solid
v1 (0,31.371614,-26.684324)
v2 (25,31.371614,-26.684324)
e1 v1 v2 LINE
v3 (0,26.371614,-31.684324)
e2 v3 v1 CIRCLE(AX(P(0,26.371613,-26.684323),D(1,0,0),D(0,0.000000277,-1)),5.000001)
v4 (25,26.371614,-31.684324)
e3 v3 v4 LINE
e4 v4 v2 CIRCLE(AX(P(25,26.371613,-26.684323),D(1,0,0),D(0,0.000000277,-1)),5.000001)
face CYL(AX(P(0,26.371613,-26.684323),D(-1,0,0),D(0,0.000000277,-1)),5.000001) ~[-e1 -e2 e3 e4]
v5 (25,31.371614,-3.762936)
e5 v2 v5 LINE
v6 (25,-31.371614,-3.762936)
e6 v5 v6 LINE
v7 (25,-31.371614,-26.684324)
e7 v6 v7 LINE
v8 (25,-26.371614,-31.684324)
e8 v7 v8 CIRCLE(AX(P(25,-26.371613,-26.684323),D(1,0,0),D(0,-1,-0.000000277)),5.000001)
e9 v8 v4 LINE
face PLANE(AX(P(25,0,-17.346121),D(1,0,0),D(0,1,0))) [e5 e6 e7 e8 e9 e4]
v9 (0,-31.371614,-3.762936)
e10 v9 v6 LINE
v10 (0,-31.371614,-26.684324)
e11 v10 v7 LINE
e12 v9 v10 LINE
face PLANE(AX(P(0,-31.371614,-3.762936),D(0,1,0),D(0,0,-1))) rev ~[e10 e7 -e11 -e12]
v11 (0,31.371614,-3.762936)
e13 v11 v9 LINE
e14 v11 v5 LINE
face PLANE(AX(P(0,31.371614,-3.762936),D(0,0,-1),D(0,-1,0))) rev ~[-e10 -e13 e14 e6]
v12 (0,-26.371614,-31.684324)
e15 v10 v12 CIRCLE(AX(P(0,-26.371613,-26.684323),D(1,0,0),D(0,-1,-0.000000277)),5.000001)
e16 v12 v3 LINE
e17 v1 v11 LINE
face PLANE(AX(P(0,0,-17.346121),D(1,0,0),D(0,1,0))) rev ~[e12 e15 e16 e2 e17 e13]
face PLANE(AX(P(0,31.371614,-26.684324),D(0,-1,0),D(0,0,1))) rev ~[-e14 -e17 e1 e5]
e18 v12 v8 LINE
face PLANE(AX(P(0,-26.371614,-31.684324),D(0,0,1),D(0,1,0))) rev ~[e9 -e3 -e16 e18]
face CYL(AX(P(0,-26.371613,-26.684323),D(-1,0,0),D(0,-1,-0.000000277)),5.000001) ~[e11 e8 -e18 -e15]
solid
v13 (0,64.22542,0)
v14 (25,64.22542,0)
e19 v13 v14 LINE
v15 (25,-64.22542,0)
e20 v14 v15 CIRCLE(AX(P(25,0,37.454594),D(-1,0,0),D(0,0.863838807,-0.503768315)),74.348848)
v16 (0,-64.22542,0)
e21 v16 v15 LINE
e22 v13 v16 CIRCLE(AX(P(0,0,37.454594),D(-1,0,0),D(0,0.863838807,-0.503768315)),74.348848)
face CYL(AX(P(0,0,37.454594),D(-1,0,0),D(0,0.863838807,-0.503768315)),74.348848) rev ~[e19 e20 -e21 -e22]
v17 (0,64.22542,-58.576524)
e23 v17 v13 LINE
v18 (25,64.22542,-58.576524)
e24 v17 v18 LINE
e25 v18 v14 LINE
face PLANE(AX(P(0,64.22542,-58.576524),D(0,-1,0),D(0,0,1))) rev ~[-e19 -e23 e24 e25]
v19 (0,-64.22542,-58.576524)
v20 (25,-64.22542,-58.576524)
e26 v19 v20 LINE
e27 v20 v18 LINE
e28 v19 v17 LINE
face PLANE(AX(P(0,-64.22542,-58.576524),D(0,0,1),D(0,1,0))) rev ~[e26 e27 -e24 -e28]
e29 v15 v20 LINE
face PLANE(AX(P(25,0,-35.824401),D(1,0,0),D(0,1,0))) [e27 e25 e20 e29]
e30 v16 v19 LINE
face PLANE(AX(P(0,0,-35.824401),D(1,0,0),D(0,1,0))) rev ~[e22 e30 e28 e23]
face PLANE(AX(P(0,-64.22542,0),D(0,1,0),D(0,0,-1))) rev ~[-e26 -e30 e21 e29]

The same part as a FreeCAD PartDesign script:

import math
import FreeCAD as App
import Part
import Sketcher
from FreeCAD import Vector

doc = App.newDocument("Part")
body = doc.addObject("PartDesign::Body", "Body")

# Sketch on YZ plane
sketch1 = body.newObject("Sketcher::SketchObject", "Sketch")
sketch1.AttachmentSupport = (doc.getObject("YZ_Plane"), [""])
sketch1.MapMode = "FlatFace"
sketch1.addGeometry([
    Part.ArcOfCircle(Part.Circle(Vector(0, 37, 0), Vector(0, 0, 1), 74), math.radians(-150), math.radians(-30)),
    Part.LineSegment(Vector(-64, 0, 0), Vector(-64, -59, 0)),
    Part.LineSegment(Vector(-64, -59, 0), Vector(64, -59, 0)),
    Part.LineSegment(Vector(64, -59, 0), Vector(64, 0, 0)),
], False)
sketch1.addConstraint([
    Sketcher.Constraint("Coincident", 0, 1, 1, 1),
    Sketcher.Constraint("Coincident", 1, 2, 2, 1),
    Sketcher.Constraint("Coincident", 2, 2, 3, 1),
    Sketcher.Constraint("Coincident", 3, 2, 0, 2),
    Sketcher.Constraint("Vertical", 1),
    Sketcher.Constraint("Horizontal", 2),
    Sketcher.Constraint("Vertical", 3),
    Sketcher.Constraint("Symmetric", 0, 1, 3, 2, -1, 1),
    Sketcher.Constraint("PointOnObject", 0, 3, -2),
    Sketcher.Constraint("Radius", 0, 74.348848),
    Sketcher.Constraint("DistanceX", 2, 1, 2, 2, 128.45084),
    Sketcher.Constraint("DistanceY", 1, 2, 1, 1, 58.576524),
])
pad1 = body.newObject("PartDesign::Pad", "Pad")
pad1.Profile = sketch1
pad1.Length = 25
body2 = doc.addObject("PartDesign::Body", "Body001")

# Sketch on YZ plane
sketch2 = body2.newObject("Sketcher::SketchObject", "Sketch001")
sketch2.AttachmentSupport = (doc.getObject("YZ_Plane001"), [""])
sketch2.MapMode = "FlatFace"
sketch2.addGeometry([
    Part.LineSegment(Vector(31, -4, 0), Vector(-31, -4, 0)),  # 0
    Part.LineSegment(Vector(-31, -4, 0), Vector(-31, -27, 0)),  # 1
    Part.ArcOfCircle(Part.Circle(Vector(-26, -27, 0), Vector(0, 0, 1), 5), math.radians(-180), math.radians(-90)),  # 2
    Part.LineSegment(Vector(-26, -32, 0), Vector(26, -32, 0)),  # 3
    Part.ArcOfCircle(Part.Circle(Vector(26, -27, 0), Vector(0, 0, 1), 5), math.radians(-90), math.radians(0)),  # 4
    Part.LineSegment(Vector(31, -27, 0), Vector(31, -4, 0)),  # 5
], False)
sketch2.addConstraint([
    Sketcher.Constraint("Coincident", 0, 2, 1, 1),
    Sketcher.Constraint("Tangent", 1, 2, 2, 1),
    Sketcher.Constraint("Tangent", 2, 2, 3, 1),
    Sketcher.Constraint("Tangent", 3, 2, 4, 1),
    Sketcher.Constraint("Tangent", 4, 2, 5, 1),
    Sketcher.Constraint("Coincident", 5, 2, 0, 1),
    Sketcher.Constraint("Horizontal", 0),
    Sketcher.Constraint("Vertical", 1),
    Sketcher.Constraint("Horizontal", 3),
    Sketcher.Constraint("Vertical", 5),
    Sketcher.Constraint("Equal", 2, 4),
    Sketcher.Constraint("Radius", 2, 5.000001),
    Sketcher.Constraint("DistanceX", 0, 2, 0, 1, 62.743228),
    Sketcher.Constraint("DistanceY", 1, 2, 1, 1, 22.921388),
    Sketcher.Constraint("DistanceX", 2, 3, -1, 1, 26.371613),
    Sketcher.Constraint("DistanceY", 2, 3, -1, 1, 26.684323),
])
pad2 = body2.newObject("PartDesign::Pad", "Pad001")
pad2.Profile = sketch2
pad2.Length = 25

doc.recompute()
